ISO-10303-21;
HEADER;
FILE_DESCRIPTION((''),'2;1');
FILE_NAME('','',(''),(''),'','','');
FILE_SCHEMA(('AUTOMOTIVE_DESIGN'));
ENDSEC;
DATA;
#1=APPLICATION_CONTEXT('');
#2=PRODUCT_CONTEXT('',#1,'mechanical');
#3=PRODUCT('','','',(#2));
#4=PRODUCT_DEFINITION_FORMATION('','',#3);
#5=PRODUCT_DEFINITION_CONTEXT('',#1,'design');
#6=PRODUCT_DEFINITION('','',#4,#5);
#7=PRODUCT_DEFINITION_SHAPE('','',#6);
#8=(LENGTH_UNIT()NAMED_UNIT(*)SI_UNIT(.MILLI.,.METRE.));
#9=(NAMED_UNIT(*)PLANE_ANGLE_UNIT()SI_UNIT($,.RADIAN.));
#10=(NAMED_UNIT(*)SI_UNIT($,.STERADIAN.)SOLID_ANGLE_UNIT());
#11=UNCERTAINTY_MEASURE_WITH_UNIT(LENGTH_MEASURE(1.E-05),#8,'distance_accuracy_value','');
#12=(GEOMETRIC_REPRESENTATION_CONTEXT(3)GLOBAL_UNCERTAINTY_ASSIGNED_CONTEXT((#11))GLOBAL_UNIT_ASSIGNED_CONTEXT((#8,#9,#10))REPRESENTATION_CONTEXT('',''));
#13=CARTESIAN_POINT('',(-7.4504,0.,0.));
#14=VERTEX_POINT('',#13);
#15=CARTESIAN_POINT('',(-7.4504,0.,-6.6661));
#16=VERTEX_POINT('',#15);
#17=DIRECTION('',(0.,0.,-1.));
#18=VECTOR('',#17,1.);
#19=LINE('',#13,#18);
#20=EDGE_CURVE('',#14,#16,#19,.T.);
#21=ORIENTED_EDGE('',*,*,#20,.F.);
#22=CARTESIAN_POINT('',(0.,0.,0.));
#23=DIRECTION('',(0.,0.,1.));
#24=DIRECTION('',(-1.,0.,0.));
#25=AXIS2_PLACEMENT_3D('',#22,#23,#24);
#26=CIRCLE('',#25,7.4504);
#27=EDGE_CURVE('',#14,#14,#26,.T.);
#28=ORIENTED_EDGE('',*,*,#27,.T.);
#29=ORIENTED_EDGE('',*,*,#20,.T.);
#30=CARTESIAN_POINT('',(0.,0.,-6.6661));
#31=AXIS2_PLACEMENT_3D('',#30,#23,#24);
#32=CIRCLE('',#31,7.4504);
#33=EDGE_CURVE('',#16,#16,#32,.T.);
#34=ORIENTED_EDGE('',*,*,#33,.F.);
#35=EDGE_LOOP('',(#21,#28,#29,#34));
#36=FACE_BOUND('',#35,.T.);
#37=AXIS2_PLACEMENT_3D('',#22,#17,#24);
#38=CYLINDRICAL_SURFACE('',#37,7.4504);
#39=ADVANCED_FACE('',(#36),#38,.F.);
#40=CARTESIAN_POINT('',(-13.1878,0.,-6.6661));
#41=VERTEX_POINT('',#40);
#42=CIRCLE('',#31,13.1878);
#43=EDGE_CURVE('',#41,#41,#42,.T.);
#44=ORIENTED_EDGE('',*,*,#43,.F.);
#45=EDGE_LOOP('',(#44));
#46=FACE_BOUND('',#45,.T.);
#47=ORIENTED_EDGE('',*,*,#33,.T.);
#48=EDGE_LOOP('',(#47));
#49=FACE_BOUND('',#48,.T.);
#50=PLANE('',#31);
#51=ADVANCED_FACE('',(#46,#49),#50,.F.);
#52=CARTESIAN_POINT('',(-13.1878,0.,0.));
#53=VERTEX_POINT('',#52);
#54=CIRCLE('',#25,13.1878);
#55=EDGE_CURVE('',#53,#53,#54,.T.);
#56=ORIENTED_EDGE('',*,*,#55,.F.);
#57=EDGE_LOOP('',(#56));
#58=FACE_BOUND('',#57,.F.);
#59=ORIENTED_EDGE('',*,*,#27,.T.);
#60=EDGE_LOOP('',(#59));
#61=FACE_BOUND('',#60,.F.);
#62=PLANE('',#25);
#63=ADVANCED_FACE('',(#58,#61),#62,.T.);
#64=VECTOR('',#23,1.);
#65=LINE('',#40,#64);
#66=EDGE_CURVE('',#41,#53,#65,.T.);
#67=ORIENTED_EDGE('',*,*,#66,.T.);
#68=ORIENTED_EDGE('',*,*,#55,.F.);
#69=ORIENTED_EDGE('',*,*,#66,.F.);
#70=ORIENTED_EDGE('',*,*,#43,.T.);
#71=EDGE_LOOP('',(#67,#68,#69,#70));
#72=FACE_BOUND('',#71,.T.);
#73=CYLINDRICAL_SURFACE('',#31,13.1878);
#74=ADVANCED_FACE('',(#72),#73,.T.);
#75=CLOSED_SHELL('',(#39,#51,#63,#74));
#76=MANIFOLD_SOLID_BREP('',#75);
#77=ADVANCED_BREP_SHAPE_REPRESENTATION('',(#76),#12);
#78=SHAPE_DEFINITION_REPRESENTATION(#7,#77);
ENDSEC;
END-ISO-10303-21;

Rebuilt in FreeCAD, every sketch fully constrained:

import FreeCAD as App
import Part
import Sketcher
from FreeCAD import Vector
Q = App.Units.Quantity


def add_polygon(sketch, points):
    """Adds a closed chain of lines whose ends are joined by coincident constraints."""
    first, n = sketch.GeometryCount, len(points)
    for a, b in zip(points, points[1:] + points[:1]):
        sketch.addGeometry(Part.LineSegment(App.Vector(*a, 0), App.Vector(*b, 0)), False)
    for i in range(n):
        sketch.addConstraint(Sketcher.Constraint("Coincident", first + i, 2, first + (i + 1) % n, 1))

doc = App.newDocument("Part")
params = doc.addObject("Spreadsheet::Sheet", "Params")
for row, (alias, value) in enumerate([
    ("revolution_angle", "360 deg"),
], start=1):
    params.set(f"A{row}", alias)
    params.set(f"B{row}", "=" + value)
    params.setAlias(f"B{row}", alias)

body = doc.addObject("PartDesign::Body", "Body")

# Sketch on XZ plane
sketch1 = body.newObject("Sketcher::SketchObject", "Sketch")
sketch1.AttachmentSupport = (doc.getObject("XZ_Plane"), [""])
sketch1.MapMode = "FlatFace"
add_polygon(sketch1, [(-13, 0), (-7, 0), (-7, -7), (-13, -7)])  # lines 0-3
sketch1.addConstraint([
    Sketcher.Constraint("Horizontal", 0),
    Sketcher.Constraint("Vertical", 1),
    Sketcher.Constraint("Horizontal", 2),
    Sketcher.Constraint("Vertical", 3),
    Sketcher.Constraint("PointOnObject", 0, 2, -1),
    Sketcher.Constraint("DistanceY", 1, 2, 1, 1, Q("6.666 mm")),
    Sketcher.Constraint("DistanceX", 0, 1, 0, 2, Q("5.7374 mm")),
    Sketcher.Constraint("DistanceX", 0, 2, -1, 1, Q("7.4504 mm")),
])
revolution = body.newObject("PartDesign::Revolution", "Revolution")
revolution.Profile = sketch1
revolution.ReferenceAxis = (sketch1, ["V_Axis"])
revolution.setExpression("Angle", "Params.revolution_angle")

doc.recompute()
